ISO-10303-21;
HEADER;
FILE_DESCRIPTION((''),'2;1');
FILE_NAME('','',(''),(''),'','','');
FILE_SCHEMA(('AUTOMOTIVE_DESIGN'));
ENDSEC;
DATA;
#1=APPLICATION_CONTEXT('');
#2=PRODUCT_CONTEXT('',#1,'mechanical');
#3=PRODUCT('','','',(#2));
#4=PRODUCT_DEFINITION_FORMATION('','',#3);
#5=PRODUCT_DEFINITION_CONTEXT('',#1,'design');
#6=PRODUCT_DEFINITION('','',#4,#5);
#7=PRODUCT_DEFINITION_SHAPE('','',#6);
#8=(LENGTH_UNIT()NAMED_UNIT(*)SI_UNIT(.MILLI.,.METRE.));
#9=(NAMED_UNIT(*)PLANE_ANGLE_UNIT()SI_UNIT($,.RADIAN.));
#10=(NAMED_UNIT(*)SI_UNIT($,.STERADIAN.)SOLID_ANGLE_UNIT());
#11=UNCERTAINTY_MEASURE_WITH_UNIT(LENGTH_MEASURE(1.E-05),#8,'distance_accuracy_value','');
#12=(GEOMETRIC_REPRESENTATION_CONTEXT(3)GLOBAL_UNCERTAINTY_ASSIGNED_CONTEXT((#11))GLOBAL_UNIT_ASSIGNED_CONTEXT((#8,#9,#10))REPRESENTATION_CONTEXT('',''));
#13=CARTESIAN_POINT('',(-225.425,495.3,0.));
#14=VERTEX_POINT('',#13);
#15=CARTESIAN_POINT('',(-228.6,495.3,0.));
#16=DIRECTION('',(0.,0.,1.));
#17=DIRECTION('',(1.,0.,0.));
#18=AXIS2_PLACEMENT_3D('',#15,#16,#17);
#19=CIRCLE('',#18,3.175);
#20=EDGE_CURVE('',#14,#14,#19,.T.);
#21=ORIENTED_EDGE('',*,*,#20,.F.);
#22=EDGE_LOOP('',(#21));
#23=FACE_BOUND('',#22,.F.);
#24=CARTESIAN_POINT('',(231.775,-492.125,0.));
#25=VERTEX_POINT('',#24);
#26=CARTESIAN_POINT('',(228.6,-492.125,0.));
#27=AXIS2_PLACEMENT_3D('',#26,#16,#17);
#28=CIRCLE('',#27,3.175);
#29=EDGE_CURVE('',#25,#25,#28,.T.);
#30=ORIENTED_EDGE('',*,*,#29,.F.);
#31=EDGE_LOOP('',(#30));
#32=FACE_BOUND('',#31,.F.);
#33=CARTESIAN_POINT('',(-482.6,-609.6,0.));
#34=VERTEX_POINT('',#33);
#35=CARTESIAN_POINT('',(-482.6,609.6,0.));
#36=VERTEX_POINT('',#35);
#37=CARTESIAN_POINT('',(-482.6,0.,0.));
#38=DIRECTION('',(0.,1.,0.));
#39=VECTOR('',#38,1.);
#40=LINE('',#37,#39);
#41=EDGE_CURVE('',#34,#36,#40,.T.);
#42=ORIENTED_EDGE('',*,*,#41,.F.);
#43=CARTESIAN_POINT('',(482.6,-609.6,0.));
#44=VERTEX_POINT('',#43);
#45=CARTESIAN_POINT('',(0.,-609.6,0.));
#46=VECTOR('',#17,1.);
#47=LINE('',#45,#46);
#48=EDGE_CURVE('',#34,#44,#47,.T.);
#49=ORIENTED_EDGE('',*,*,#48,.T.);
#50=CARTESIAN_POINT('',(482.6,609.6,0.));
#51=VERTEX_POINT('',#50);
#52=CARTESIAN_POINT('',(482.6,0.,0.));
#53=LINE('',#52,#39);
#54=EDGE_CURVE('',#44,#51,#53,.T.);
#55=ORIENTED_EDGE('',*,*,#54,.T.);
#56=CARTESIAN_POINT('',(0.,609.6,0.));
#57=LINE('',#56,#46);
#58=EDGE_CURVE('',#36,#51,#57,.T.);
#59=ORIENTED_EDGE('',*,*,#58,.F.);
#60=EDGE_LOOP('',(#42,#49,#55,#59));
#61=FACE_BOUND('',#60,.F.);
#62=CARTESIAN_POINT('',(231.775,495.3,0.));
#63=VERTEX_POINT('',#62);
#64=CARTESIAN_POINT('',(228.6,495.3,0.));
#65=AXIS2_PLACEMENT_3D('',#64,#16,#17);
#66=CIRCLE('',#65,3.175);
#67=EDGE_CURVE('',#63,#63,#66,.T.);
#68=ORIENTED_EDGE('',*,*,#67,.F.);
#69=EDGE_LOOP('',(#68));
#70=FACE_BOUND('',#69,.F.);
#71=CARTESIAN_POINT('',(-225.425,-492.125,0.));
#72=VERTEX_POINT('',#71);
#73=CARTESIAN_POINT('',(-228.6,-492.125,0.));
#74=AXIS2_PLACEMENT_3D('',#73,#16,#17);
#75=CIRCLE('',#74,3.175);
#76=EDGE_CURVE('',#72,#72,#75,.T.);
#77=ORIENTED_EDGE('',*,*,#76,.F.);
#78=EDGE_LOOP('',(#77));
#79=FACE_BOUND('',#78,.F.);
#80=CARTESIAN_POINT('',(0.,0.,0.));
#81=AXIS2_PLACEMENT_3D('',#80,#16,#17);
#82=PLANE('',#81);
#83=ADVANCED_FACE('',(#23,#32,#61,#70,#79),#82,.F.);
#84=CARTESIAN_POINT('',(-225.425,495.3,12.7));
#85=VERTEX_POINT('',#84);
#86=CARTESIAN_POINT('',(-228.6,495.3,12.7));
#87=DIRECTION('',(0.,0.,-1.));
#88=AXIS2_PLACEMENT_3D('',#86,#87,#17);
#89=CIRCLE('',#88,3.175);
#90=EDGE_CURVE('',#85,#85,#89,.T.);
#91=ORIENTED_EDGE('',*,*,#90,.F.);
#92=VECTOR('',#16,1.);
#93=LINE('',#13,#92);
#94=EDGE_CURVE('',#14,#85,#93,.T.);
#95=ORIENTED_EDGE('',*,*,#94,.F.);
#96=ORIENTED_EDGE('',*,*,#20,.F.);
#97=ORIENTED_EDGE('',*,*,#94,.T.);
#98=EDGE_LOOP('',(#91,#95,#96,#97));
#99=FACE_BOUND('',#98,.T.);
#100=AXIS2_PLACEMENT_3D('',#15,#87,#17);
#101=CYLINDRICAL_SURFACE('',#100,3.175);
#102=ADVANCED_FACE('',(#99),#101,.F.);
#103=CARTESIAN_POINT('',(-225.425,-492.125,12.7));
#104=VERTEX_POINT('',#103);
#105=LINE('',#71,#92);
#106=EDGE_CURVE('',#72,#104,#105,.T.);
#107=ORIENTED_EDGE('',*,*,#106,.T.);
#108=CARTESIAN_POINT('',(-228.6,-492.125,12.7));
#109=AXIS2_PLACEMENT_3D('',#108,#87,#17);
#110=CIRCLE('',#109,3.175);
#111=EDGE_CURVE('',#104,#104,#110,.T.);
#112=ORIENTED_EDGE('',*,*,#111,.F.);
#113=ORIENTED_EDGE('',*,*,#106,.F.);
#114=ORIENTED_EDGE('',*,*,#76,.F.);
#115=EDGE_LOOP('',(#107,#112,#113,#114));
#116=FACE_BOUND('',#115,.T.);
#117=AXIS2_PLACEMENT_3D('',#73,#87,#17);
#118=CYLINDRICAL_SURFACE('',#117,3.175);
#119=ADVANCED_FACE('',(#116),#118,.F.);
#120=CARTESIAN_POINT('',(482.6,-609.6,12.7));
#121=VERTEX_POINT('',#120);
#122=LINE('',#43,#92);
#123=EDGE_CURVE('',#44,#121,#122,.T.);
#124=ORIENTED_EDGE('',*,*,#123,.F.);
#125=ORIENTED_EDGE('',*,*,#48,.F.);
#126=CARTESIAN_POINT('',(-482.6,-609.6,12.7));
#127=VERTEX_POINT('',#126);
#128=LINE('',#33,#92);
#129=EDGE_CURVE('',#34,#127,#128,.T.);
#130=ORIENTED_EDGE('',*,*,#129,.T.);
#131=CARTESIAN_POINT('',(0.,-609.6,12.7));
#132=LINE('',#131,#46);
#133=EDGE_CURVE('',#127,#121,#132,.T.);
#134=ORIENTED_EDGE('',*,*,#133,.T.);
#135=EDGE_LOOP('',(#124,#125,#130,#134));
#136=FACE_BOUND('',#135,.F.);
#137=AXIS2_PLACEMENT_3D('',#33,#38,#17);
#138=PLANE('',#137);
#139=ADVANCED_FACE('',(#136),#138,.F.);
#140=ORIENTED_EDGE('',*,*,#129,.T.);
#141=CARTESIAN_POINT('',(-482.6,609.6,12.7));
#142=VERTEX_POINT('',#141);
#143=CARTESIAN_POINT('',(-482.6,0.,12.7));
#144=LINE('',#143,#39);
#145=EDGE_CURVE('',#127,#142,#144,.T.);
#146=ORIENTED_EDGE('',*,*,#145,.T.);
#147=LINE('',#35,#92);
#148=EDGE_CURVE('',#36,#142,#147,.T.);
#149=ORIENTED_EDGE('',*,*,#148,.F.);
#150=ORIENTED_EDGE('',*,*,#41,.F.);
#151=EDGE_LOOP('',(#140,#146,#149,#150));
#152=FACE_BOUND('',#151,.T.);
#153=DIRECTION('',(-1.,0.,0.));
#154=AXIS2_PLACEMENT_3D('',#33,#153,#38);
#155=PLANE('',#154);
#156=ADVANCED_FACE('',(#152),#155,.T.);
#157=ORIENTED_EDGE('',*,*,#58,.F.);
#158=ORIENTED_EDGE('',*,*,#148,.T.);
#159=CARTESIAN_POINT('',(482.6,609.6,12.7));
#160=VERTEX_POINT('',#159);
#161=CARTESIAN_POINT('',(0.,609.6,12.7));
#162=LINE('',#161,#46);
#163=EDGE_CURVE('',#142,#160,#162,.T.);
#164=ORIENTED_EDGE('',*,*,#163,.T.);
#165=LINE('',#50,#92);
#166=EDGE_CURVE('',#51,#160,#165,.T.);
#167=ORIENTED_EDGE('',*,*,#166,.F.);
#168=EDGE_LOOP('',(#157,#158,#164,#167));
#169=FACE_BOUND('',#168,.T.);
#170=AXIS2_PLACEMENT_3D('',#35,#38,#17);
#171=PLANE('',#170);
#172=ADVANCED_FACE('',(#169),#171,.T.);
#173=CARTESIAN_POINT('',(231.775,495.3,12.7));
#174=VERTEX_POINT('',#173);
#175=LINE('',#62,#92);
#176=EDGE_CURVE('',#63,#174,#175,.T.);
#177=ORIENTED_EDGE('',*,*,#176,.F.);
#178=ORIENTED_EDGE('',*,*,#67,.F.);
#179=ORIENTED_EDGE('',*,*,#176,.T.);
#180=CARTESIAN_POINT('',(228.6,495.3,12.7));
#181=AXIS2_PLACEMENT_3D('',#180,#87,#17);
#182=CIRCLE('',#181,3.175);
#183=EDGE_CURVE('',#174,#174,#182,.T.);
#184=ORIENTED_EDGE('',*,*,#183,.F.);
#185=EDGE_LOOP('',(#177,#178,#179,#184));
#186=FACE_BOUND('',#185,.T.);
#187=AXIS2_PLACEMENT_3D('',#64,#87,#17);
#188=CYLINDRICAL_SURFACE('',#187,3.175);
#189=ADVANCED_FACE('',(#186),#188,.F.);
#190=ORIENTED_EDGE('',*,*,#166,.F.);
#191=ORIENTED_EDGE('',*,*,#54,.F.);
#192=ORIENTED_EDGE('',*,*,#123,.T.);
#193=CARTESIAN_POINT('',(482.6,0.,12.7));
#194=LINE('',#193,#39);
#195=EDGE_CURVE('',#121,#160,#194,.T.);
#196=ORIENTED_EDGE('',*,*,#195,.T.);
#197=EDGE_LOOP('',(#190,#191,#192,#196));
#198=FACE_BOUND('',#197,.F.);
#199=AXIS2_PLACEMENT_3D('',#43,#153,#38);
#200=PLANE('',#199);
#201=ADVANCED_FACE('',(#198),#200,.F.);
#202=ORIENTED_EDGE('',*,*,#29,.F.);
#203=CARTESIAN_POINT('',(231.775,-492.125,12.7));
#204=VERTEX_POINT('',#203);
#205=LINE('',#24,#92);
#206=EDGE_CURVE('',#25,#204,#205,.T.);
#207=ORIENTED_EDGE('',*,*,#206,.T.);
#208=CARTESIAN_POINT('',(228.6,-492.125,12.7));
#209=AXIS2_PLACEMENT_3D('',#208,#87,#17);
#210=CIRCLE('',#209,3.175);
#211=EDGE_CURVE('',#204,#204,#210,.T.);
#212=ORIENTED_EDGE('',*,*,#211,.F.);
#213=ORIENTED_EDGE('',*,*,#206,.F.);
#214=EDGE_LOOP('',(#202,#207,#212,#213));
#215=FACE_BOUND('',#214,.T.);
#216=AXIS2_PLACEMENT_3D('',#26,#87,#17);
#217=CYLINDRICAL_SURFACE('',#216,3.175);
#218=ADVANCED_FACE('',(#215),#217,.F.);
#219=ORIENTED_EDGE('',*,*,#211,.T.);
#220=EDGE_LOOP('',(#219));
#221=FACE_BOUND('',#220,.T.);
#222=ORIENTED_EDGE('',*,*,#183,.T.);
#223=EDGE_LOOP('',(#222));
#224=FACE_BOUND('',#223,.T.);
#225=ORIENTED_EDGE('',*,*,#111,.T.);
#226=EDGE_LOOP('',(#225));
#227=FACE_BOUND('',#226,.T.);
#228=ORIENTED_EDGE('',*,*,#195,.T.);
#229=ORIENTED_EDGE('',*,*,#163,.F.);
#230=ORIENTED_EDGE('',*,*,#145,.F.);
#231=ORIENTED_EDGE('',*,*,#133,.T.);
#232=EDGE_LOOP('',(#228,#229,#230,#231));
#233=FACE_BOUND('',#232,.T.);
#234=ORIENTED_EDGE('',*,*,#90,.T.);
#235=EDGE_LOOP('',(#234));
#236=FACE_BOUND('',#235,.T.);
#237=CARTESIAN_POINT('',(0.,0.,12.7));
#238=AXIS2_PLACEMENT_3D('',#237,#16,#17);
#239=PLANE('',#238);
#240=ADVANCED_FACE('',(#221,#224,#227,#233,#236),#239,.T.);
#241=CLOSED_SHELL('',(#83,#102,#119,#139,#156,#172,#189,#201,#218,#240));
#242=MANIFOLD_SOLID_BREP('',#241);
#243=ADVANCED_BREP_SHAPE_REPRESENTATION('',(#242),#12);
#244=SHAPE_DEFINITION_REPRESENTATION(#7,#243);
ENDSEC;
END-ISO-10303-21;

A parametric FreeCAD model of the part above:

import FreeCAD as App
import Part
import Sketcher

V = App.Vector
Q = App.Units.Quantity

doc = App.newDocument("Part")
params = doc.addObject("Spreadsheet::Sheet", "Params")
for row, (alias, value) in enumerate([
    ("sketch1_width", "38 in"),
    ("sketch1_height", "48 in"),
    ("pad1_length", "0.5 in"),
    ("sketch2_diameter", "0.25 in"),
    ("pocket1_length", "1 in"),
    ("sketch3_diameter", "0.25 in"),
    ("pocket2_length", "1 in"),
], start=1):
    params.set(f"A{row}", alias)
    params.set(f"B{row}", "=" + value)
    params.setAlias(f"B{row}", alias)

body = doc.addObject("PartDesign::Body", "Body")

# Sketch on XY plane
sketch1 = doc.addObject("Sketcher::SketchObject", "Sketch")
body.addObject(sketch1)
sketch1.AttachmentSupport = (doc.XY_Plane, [""])
sketch1.MapMode = "FlatFace"
sketch1.addGeometry([
    Part.LineSegment(V(-483, 610, 0), V(-483, -610, 0)),
    Part.LineSegment(V(-483, -610, 0), V(483, -610, 0)),
    Part.LineSegment(V(483, -610, 0), V(483, 610, 0)),
    Part.LineSegment(V(483, 610, 0), V(-483, 610, 0)),
], False)
sketch1.addConstraint([
    Sketcher.Constraint("Coincident", 0, 2, 1, 1),
    Sketcher.Constraint("Coincident", 1, 2, 2, 1),
    Sketcher.Constraint("Coincident", 2, 2, 3, 1),
    Sketcher.Constraint("Coincident", 3, 2, 0, 1),
    Sketcher.Constraint("Vertical", 0),
    Sketcher.Constraint("Horizontal", 1),
    Sketcher.Constraint("Vertical", 2),
    Sketcher.Constraint("Horizontal", 3),
    Sketcher.Constraint("Symmetric", 0, 2, 2, 2, -1, 1),
    Sketcher.Constraint("DistanceX", 1, 1, 1, 2, Q("38 in")),
    Sketcher.Constraint("DistanceY", 0, 2, 0, 1, Q("48 in")),
])
sketch1.setExpression("Constraints[9]", "Params.sketch1_width")
sketch1.setExpression("Constraints[10]", "Params.sketch1_height")
pad1 = doc.addObject("PartDesign::Pad", "Pad")
body.addObject(pad1)
pad1.Profile = sketch1
pad1.setExpression("Length", "Params.pad1_length")

# Sketch on XY plane
sketch2 = doc.addObject("Sketcher::SketchObject", "Sketch001")
body.addObject(sketch2)
sketch2.AttachmentSupport = (doc.XY_Plane, [""])
sketch2.MapMode = "FlatFace"
sketch2.addGeometry([
    Part.Circle(V(-228.6, -492.1, 0), V(0, 0, 1), 3.2),
    Part.Circle(V(228.6, -492.1, 0), V(0, 0, 1), 3.2),
], False)
sketch2.addConstraint([
    Sketcher.Constraint("Equal", 0, 1),
    Sketcher.Constraint("Symmetric", 0, 3, 1, 3, -2),
    Sketcher.Constraint("Diameter", 0, Q("0.25 in")),
    Sketcher.Constraint("DistanceX", 0, 3, -1, 1, Q("9 in")),
    Sketcher.Constraint("DistanceY", 0, 3, -1, 1, Q("19.375 in")),
])
sketch2.setExpression("Constraints[2]", "Params.sketch2_diameter")
pocket1 = doc.addObject("PartDesign::Pocket", "Pocket")
body.addObject(pocket1)
pocket1.Profile = sketch2
pocket1.setExpression("Length", "Params.pocket1_length")
pocket1.Reversed = True

# Sketch on XY plane
sketch3 = doc.addObject("Sketcher::SketchObject", "Sketch002")
body.addObject(sketch3)
sketch3.AttachmentSupport = (doc.XY_Plane, [""])
sketch3.MapMode = "FlatFace"
sketch3.addGeometry([
    Part.Circle(V(-228.6, 495.3, 0), V(0, 0, 1), 3.2),
    Part.Circle(V(228.6, 495.3, 0), V(0, 0, 1), 3.2),
], False)
sketch3.addConstraint([
    Sketcher.Constraint("Equal", 0, 1),
    Sketcher.Constraint("Symmetric", 0, 3, 1, 3, -2),
    Sketcher.Constraint("Diameter", 0, Q("0.25 in")),
    Sketcher.Constraint("DistanceX", 0, 3, -1, 1, Q("9 in")),
    Sketcher.Constraint("DistanceY", -1, 1, 0, 3, Q("19.5 in")),
])
sketch3.setExpression("Constraints[2]", "Params.sketch3_diameter")
pocket2 = doc.addObject("PartDesign::Pocket", "Pocket001")
body.addObject(pocket2)
pocket2.Profile = sketch3
pocket2.setExpression("Length", "Params.pocket2_length")
pocket2.Reversed = True

doc.recompute()
